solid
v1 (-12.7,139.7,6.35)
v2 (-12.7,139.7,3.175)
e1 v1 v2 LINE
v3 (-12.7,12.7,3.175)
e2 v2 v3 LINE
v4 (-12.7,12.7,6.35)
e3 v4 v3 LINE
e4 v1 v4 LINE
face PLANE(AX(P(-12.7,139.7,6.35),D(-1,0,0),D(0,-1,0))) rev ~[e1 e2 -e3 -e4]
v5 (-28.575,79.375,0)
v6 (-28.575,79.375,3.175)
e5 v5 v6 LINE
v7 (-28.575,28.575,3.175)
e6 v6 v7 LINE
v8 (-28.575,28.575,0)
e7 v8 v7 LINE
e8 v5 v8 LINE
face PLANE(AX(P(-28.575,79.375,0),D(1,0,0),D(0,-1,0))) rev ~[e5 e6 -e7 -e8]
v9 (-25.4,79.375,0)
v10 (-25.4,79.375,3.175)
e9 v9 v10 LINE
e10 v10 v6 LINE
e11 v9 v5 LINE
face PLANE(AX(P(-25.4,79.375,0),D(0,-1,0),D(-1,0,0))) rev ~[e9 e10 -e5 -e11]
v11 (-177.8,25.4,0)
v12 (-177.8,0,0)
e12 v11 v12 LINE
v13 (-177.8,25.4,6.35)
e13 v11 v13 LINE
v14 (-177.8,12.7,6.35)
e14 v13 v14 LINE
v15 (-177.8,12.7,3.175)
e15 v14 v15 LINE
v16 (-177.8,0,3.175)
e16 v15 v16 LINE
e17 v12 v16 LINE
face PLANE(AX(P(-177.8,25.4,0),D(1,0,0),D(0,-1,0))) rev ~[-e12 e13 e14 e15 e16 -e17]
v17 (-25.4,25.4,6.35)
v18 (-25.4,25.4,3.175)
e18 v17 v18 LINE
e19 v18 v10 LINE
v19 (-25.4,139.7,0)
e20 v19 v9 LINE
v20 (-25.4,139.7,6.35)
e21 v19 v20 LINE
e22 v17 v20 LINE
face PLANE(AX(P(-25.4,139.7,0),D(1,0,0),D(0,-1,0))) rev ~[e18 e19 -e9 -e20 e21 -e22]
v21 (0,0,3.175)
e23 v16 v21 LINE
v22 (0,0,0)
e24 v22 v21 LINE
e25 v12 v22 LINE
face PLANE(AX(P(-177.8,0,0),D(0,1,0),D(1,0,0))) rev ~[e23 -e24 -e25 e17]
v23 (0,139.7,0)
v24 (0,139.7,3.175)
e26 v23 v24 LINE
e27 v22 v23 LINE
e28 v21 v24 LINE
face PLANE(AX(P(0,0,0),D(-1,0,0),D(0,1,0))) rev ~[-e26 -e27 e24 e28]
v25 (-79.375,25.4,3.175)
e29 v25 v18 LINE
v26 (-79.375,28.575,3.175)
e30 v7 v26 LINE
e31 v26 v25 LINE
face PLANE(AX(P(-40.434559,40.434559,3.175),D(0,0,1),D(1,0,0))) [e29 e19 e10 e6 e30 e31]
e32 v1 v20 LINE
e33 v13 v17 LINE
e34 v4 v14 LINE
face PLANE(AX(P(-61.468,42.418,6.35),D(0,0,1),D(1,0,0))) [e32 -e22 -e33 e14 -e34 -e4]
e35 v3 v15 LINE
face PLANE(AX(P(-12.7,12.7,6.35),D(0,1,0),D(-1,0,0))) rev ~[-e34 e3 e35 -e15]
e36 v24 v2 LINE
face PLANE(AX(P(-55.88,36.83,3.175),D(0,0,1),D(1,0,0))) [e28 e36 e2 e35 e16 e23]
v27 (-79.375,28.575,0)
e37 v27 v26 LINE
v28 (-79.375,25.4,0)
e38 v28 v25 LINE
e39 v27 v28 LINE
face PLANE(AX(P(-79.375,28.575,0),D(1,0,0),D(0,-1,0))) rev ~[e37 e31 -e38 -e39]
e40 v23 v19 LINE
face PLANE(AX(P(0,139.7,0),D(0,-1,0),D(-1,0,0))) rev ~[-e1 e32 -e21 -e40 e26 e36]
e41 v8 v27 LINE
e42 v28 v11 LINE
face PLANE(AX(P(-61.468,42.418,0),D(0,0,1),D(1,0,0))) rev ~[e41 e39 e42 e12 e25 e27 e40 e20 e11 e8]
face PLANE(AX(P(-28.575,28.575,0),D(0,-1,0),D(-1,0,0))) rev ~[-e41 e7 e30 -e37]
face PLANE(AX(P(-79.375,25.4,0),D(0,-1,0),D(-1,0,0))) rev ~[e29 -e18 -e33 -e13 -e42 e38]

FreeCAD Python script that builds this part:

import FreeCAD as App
import Part
import Sketcher

V = App.Vector
Q = App.Units.Quantity


def add_polygon(sketch, points):
    """Adds a closed chain of lines whose ends are joined by coincident constraints."""
    first, n = sketch.GeometryCount, len(points)
    for a, b in zip(points, points[1:] + points[:1]):
        sketch.addGeometry(Part.LineSegment(App.Vector(*a, 0), App.Vector(*b, 0)), False)
    for i in range(n):
        sketch.addConstraint(Sketcher.Constraint("Coincident", first + i, 2, first + (i + 1) % n, 1))

doc = App.newDocument("Part")
body = doc.addObject("PartDesign::Body", "Body")

# Sketch on XY plane
sketch1 = doc.addObject("Sketcher::SketchObject", "Sketch")
body.addObject(sketch1)
sketch1.AttachmentSupport = (doc.XY_Plane, [""])
sketch1.MapMode = "FlatFace"
add_polygon(sketch1, [(-177.8, 0), (0, 0), (0, 139.7), (-25.4, 139.7), (-25.4, 79.4), (-28.6, 79.4), (-28.6, 28.6), (-79.4, 28.6), (-79.4, 25.4), (-177.8, 25.4)])  # lines 0-9
sketch1.addConstraint([
    Sketcher.Constraint("Horizontal", 0),
    Sketcher.Constraint("Vertical", 1),
    Sketcher.Constraint("Horizontal", 2),
    Sketcher.Constraint("Vertical", 3),
    Sketcher.Constraint("Horizontal", 4),
    Sketcher.Constraint("Vertical", 5),
    Sketcher.Constraint("Horizontal", 6),
    Sketcher.Constraint("Vertical", 7),
    Sketcher.Constraint("Horizontal", 8),
    Sketcher.Constraint("Vertical", 9),
    Sketcher.Constraint("Coincident", 0, 2, -1, 1),
    Sketcher.Constraint("Equal", 6, 5),
    Sketcher.Constraint("Equal", 4, 7),
    Sketcher.Constraint("Equal", 2, 9),
    Sketcher.Constraint("DistanceX", 0, 1, 0, 2, Q("7 in")),
    Sketcher.Constraint("DistanceX", 2, 2, 2, 1, Q("1 in")),
    Sketcher.Constraint("DistanceX", 6, 2, 6, 1, Q("2 in")),
    Sketcher.Constraint("DistanceY", 1, 1, 1, 2, Q("5.5 in")),
    Sketcher.Constraint("DistanceX", 4, 2, 4, 1, Q("0.125 in")),
])
pad1 = doc.addObject("PartDesign::Pad", "Pad")
body.addObject(pad1)
pad1.Profile = sketch1
pad1.Length = Q("0.25 in")

# Sketch on XY plane
sketch2 = doc.addObject("Sketcher::SketchObject", "Sketch001")
body.addObject(sketch2)
sketch2.AttachmentSupport = (doc.XY_Plane, [""])
sketch2.MapMode = "FlatFace"
sketch2.AttachmentOffset = App.Placement(V(0, 0, 0.25 * 25.4), App.Rotation())
add_polygon(sketch2, [(0, 140), (-13, 140), (-13, 13), (-178, 13), (-178, 0), (0, 0)])  # lines 0-5
sketch2.addConstraint([
    Sketcher.Constraint("Horizontal", 0),
    Sketcher.Constraint("Vertical", 1),
    Sketcher.Constraint("Horizontal", 2),
    Sketcher.Constraint("Vertical", 3),
    Sketcher.Constraint("Horizontal", 4),
    Sketcher.Constraint("Vertical", 5),
    Sketcher.Constraint("Coincident", 4, 2, -1, 1),
    Sketcher.Constraint("Equal", 0, 3),
    Sketcher.Constraint("DistanceX", 4, 1, 4, 2, Q("7 in")),
    Sketcher.Constraint("DistanceY", 1, 2, 1, 1, Q("5 in")),
    Sketcher.Constraint("DistanceX", 0, 2, 0, 1, Q("0.5 in")),
])
pocket1 = doc.addObject("PartDesign::Pocket", "Pocket")
body.addObject(pocket1)
pocket1.Profile = sketch2
pocket1.Length = Q("0.125 in")

# Sketch on XY plane
sketch3 = doc.addObject("Sketcher::SketchObject", "Sketch002")
body.addObject(sketch3)
sketch3.AttachmentSupport = (doc.XY_Plane, [""])
sketch3.MapMode = "FlatFace"
sketch3.AttachmentOffset = App.Placement(V(0, 0, 0.25 * 25.4), App.Rotation())
add_polygon(sketch3, [(-28.6, 28.6), (-79.4, 28.6), (-79.4, 25.4), (-25.4, 25.4), (-25.4, 79.4), (-28.6, 79.4)])  # lines 0-5
sketch3.addConstraint([
    Sketcher.Constraint("Horizontal", 0),
    Sketcher.Constraint("Vertical", 1),
    Sketcher.Constraint("Horizontal", 2),
    Sketcher.Constraint("Vertical", 3),
    Sketcher.Constraint("Horizontal", 4),
    Sketcher.Constraint("Vertical", 5),
    Sketcher.Constraint("Equal", 4, 1),
    Sketcher.Constraint("Equal", 2, 3),
    Sketcher.Constraint("DistanceX", 0, 2, 0, 1, Q("2 in")),
    Sketcher.Constraint("DistanceY", -1, 1, 1, 2, Q("1 in")),
    Sketcher.Constraint("DistanceX", 2, 2, -1, 1, Q("1 in")),
    Sketcher.Constraint("DistanceX", 2, 1, 2, 2, Q("2.125 in")),
])
pocket2 = doc.addObject("PartDesign::Pocket", "Pocket001")
body.addObject(pocket2)
pocket2.Profile = sketch3
pocket2.Length = Q("0.125 in")

doc.recompute()
